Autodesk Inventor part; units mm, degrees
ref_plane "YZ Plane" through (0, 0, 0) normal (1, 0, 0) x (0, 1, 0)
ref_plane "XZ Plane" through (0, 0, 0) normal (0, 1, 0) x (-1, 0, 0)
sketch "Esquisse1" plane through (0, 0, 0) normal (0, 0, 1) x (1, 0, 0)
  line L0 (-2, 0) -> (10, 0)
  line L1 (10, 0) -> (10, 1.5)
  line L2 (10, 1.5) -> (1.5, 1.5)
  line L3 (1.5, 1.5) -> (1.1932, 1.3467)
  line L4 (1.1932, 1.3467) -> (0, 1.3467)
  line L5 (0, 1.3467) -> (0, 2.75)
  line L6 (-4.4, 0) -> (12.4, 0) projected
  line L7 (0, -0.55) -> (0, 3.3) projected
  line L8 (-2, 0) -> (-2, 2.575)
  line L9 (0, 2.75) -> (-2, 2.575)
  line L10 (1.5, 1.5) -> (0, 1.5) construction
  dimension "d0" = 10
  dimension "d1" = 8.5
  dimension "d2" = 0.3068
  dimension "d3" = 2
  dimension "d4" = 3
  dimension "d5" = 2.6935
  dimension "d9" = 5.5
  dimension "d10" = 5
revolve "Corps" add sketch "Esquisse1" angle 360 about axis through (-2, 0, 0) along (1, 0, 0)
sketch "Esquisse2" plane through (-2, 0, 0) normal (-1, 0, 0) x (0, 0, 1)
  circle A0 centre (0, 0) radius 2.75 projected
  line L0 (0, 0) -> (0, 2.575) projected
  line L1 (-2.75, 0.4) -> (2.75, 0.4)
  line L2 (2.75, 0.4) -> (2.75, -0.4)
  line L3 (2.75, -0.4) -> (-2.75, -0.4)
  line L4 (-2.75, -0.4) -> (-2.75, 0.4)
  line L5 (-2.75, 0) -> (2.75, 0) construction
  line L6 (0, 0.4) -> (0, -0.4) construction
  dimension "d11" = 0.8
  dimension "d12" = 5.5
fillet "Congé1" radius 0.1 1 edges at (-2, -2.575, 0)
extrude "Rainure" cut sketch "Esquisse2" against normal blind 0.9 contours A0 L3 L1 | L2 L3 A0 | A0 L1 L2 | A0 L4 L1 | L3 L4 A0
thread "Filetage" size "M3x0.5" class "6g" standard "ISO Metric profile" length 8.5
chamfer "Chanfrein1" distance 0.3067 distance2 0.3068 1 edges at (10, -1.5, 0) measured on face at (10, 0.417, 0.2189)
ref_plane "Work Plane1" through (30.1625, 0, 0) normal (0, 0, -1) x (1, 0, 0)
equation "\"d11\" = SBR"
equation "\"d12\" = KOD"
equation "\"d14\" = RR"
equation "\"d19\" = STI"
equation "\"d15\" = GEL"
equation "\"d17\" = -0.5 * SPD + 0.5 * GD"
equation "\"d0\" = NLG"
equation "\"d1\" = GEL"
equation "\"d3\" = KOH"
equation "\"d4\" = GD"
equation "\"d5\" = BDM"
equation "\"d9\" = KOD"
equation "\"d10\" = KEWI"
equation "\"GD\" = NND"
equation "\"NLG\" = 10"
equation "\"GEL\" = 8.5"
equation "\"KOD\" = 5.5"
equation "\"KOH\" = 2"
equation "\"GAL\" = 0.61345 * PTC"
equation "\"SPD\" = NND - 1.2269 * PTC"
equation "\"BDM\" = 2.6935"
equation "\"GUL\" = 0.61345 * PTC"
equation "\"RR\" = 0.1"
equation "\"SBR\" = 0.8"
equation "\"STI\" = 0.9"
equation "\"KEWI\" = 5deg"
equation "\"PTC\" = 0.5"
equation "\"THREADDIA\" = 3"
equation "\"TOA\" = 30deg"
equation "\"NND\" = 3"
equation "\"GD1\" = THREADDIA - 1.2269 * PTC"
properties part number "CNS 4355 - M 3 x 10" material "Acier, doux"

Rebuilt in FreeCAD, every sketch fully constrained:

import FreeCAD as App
import Part
import Sketcher
from FreeCAD import Vector
Q = App.Units.Quantity


def edges_at(feature, points):
    """Names of the edges that pass closest to the given points."""
    edges = feature.Shape.Edges
    near = lambda p: min(range(len(edges)), key=lambda i: edges[i].distToShape(Part.Vertex(*p))[0])
    return sorted({f"Edge{near(p) + 1}" for p in points})


def add_polygon(sketch, points):
    """Adds a closed chain of lines whose ends are joined by coincident constraints."""
    first, n = sketch.GeometryCount, len(points)
    for a, b in zip(points, points[1:] + points[:1]):
        sketch.addGeometry(Part.LineSegment(App.Vector(*a, 0), App.Vector(*b, 0)), False)
    for i in range(n):
        sketch.addConstraint(Sketcher.Constraint("Coincident", first + i, 2, first + (i + 1) % n, 1))

doc = App.newDocument("Part")
body = doc.addObject("PartDesign::Body", "Body")

# Sketch on XY plane
sketch1 = doc.addObject("Sketcher::SketchObject", "Sketch")
body.addObject(sketch1)
sketch1.AttachmentSupport = (doc.XY_Plane, [""])
sketch1.MapMode = "FlatFace"
add_polygon(sketch1, [(-2, 2.58), (-2, 0), (10, 0), (10, 1.5), (1.5, 1.5), (1.19, 1.35), (0, 1.35), (0, 2.75)])  # lines 0-7
sketch1.addConstraint([
    Sketcher.Constraint("Vertical", 0),
    Sketcher.Constraint("Horizontal", 1),
    Sketcher.Constraint("Vertical", 2),
    Sketcher.Constraint("Horizontal", 3),
    Sketcher.Constraint("Horizontal", 5),
    Sketcher.Constraint("Vertical", 6),
    Sketcher.Constraint("PointOnObject", 0, 2, -1),
    Sketcher.Constraint("PointOnObject", 5, 2, -2),
    Sketcher.Constraint("DistanceX", 3, 2, 3, 1, 8.5),
    Sketcher.Constraint("DistanceX", 0, 2, -1, 1, 2.0),
    Sketcher.Constraint("DistanceX", -1, 1, 1, 2, 10.0),
    Sketcher.Constraint("Angle", 7, Q("-174.9994 deg")),
    Sketcher.Constraint("DistanceY", 2, 1, 2, 2, 1.5),
    Sketcher.Constraint("Angle", 4, Q("-153.45 deg")),
    Sketcher.Constraint("DistanceX", 4, 2, 3, 2, 0.3068),
    Sketcher.Constraint("DistanceY", 0, 2, 0, 1, 2.575),
])
revolution = doc.addObject("PartDesign::Revolution", "Revolution")
body.addObject(revolution)
revolution.Profile = sketch1
revolution.ReferenceAxis = (sketch1, ["H_Axis"])
revolution.Angle = 360
doc.recompute()

fillet = doc.addObject("PartDesign::Fillet", "Fillet")
body.addObject(fillet)
fillet.Base = (revolution, edges_at(revolution, [(-2, -2.575, 0)]))
fillet.Radius = 0.1

# Sketch on YZ plane
sketch2 = doc.addObject("Sketcher::SketchObject", "Sketch001")
body.addObject(sketch2)
sketch2.AttachmentSupport = (doc.YZ_Plane, [""])
sketch2.MapMode = "FlatFace"
sketch2.AttachmentOffset = App.Placement(Vector(0, 0, -2), App.Rotation())
add_polygon(sketch2, [(-0.4, 2.8), (0.4, 2.8), (0.4, -2.8), (-0.4, -2.8)])  # lines 0-3
sketch2.addConstraint([
    Sketcher.Constraint("Horizontal", 0),
    Sketcher.Constraint("Vertical", 1),
    Sketcher.Constraint("Horizontal", 2),
    Sketcher.Constraint("Vertical", 3),
    Sketcher.Constraint("Symmetric", 0, 2, 2, 2, -1, 1),
    Sketcher.Constraint("DistanceX", 0, 1, 0, 2, 0.8),
    Sketcher.Constraint("DistanceY", 1, 2, 1, 1, 5.5),
])
pocket1 = doc.addObject("PartDesign::Pocket", "Pocket")
body.addObject(pocket1)
pocket1.Profile = sketch2
pocket1.Length = 0.9
pocket1.Reversed = True
doc.recompute()

chamfer = doc.addObject("PartDesign::Chamfer", "Chamfer")
body.addObject(chamfer)
chamfer.Base = (pocket1, edges_at(pocket1, [(10, -1.5, 0)]))
chamfer.ChamferType = "Two distances"
chamfer.Size = 0.3067
chamfer.Size2 = 0.3068

doc.recompute()
